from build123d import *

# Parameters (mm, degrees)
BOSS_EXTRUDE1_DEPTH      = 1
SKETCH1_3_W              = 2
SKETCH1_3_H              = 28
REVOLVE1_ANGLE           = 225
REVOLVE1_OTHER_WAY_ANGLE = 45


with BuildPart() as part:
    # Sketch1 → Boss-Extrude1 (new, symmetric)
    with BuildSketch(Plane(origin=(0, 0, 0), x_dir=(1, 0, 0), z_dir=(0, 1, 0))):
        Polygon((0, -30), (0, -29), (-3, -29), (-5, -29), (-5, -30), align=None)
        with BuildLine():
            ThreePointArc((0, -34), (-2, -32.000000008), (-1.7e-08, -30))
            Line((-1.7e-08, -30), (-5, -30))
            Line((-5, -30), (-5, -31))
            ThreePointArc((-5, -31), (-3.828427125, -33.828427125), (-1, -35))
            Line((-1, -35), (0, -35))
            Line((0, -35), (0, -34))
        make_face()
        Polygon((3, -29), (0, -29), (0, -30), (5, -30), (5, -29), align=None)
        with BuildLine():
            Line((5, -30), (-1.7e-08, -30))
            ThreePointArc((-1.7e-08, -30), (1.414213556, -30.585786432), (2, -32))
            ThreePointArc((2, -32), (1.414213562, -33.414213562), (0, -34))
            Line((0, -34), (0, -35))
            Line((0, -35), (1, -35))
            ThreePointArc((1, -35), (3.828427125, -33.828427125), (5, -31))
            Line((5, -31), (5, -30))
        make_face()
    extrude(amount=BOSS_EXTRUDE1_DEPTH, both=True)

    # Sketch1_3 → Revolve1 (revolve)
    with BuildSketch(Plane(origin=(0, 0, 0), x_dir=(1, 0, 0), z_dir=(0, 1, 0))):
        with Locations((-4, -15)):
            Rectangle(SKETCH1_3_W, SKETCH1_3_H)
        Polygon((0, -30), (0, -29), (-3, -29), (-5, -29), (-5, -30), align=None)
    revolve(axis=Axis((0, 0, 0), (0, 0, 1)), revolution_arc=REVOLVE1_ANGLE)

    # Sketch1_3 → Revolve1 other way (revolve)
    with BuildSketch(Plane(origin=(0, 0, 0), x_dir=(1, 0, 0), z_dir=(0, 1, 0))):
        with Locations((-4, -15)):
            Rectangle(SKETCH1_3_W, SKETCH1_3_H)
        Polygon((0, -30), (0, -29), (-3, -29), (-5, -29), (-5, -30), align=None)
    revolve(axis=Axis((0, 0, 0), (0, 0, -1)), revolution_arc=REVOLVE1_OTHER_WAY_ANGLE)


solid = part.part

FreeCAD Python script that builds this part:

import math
import FreeCAD as App
import Part
import Sketcher
Q = App.Units.Quantity


def add_polygon(sketch, points):
    """Adds a closed chain of lines whose ends are joined by coincident constraints."""
    first, n = sketch.GeometryCount, len(points)
    for a, b in zip(points, points[1:] + points[:1]):
        sketch.addGeometry(Part.LineSegment(App.Vector(*a, 0), App.Vector(*b, 0)), False)
    for i in range(n):
        sketch.addConstraint(Sketcher.Constraint("Coincident", first + i, 2, first + (i + 1) % n, 1))

doc = App.newDocument("Part")
body = doc.addObject("PartDesign::Body", "Body")

# Sketch on XZ plane
sketch1 = doc.addObject("Sketcher::SketchObject", "Sketch")
body.addObject(sketch1)
sketch1.AttachmentSupport = (doc.XZ_Plane, [""])
sketch1.MapMode = "FlatFace"
sketch1.addGeometry([
    Part.LineSegment(App.Vector(-5, 29, 0), App.Vector(-5, 31, 0)),  # 0
    Part.ArcOfCircle(Part.Circle(App.Vector(-1, 31, 0), App.Vector(0, 0, 1), 4), math.radians(90), math.radians(180)),  # 1
    Part.LineSegment(App.Vector(-1, 35, 0), App.Vector(1, 35, 0)),  # 2
    Part.ArcOfCircle(Part.Circle(App.Vector(1, 31, 0), App.Vector(0, 0, 1), 4), math.radians(0), math.radians(90)),  # 3
    Part.LineSegment(App.Vector(5, 31, 0), App.Vector(5, 29, 0)),  # 4
    Part.LineSegment(App.Vector(5, 29, 0), App.Vector(-5, 29, 0)),  # 5
    Part.ArcOfCircle(Part.Circle(App.Vector(0, 32, 0), App.Vector(0, 0, 1), 2), math.radians(90), math.radians(270)),  # 6
    Part.ArcOfCircle(Part.Circle(App.Vector(0, 32, 0), App.Vector(0, 0, 1), 2), math.radians(-90), math.radians(0)),  # 7
    Part.ArcOfCircle(Part.Circle(App.Vector(0, 32, 0), App.Vector(0, 0, 1), 2), math.radians(0), math.radians(90)),  # 8
], False)
sketch1.addConstraint([
    Sketcher.Constraint("Tangent", 0, 2, 1, 2),
    Sketcher.Constraint("Tangent", 1, 1, 2, 1),
    Sketcher.Constraint("Tangent", 2, 2, 3, 2),
    Sketcher.Constraint("Tangent", 3, 1, 4, 1),
    Sketcher.Constraint("Coincident", 4, 2, 5, 1),
    Sketcher.Constraint("Coincident", 5, 2, 0, 1),
    Sketcher.Constraint("Tangent", 6, 2, 7, 1),
    Sketcher.Constraint("Tangent", 7, 2, 8, 1),
    Sketcher.Constraint("Tangent", 8, 2, 6, 1),
    Sketcher.Constraint("Vertical", 0),
    Sketcher.Constraint("Horizontal", 2),
    Sketcher.Constraint("Vertical", 4),
    Sketcher.Constraint("Horizontal", 5),
    Sketcher.Constraint("Equal", 1, 3),
    Sketcher.Constraint("PointOnObject", 6, 3, -2),
    Sketcher.Constraint("PointOnObject", 6, 2, -2),
    Sketcher.Constraint("PointOnObject", 8, 2, -2),
    Sketcher.Constraint("Horizontal", 8, 3, 7, 2),
    Sketcher.Constraint("Equal", 2, 0),
    Sketcher.Constraint("Radius", 1, Q("4 mm")),
    Sketcher.Constraint("Radius", 6, Q("2 mm")),
    Sketcher.Constraint("DistanceX", 2, 1, 2, 2, Q("2 mm")),
    Sketcher.Constraint("DistanceX", 1, 3, -1, 1, Q("1 mm")),
    Sketcher.Constraint("DistanceY", -1, 1, 1, 3, Q("31 mm")),
    Sketcher.Constraint("DistanceY", -1, 1, 6, 3, Q("32 mm")),
])
pad1 = doc.addObject("PartDesign::Pad", "Pad")
body.addObject(pad1)
pad1.Profile = sketch1
pad1.Length = 2
pad1.Midplane = True

# Sketch on XZ plane
sketch2 = doc.addObject("Sketcher::SketchObject", "Sketch001")
body.addObject(sketch2)
sketch2.AttachmentSupport = (doc.XZ_Plane, [""])
sketch2.MapMode = "FlatFace"
add_polygon(sketch2, [(-5, 1), (-5, 30), (0, 30), (0, 29), (-3, 29), (-3, 1)])  # lines 0-5
sketch2.addConstraint([
    Sketcher.Constraint("Vertical", 0),
    Sketcher.Constraint("Horizontal", 1),
    Sketcher.Constraint("Vertical", 2),
    Sketcher.Constraint("Horizontal", 3),
    Sketcher.Constraint("Vertical", 4),
    Sketcher.Constraint("Horizontal", 5),
    Sketcher.Constraint("PointOnObject", 1, 2, -2),
    Sketcher.Constraint("DistanceX", 1, 1, 1, 2, Q("5 mm")),
    Sketcher.Constraint("DistanceX", 3, 2, 3, 1, Q("3 mm")),
    Sketcher.Constraint("DistanceY", 0, 1, 0, 2, Q("29 mm")),
    Sketcher.Constraint("DistanceY", 2, 2, 2, 1, Q("1 mm")),
    Sketcher.Constraint("DistanceY", -1, 1, 0, 2, Q("30 mm")),
])
revolution = doc.addObject("PartDesign::Revolution", "Revolution")
body.addObject(revolution)
revolution.Profile = sketch2
revolution.ReferenceAxis = (sketch2, ["V_Axis"])
revolution.Angle = 225

# Sketch on XZ plane
sketch3 = doc.addObject("Sketcher::SketchObject", "Sketch002")
body.addObject(sketch3)
sketch3.AttachmentSupport = (doc.XZ_Plane, [""])
sketch3.MapMode = "FlatFace"
add_polygon(sketch3, [(-5, 1), (-5, 30), (0, 30), (0, 29), (-3, 29), (-3, 1)])  # lines 0-5
sketch3.addConstraint([
    Sketcher.Constraint("Vertical", 0),
    Sketcher.Constraint("Horizontal", 1),
    Sketcher.Constraint("Vertical", 2),
    Sketcher.Constraint("Horizontal", 3),
    Sketcher.Constraint("Vertical", 4),
    Sketcher.Constraint("Horizontal", 5),
    Sketcher.Constraint("PointOnObject", 1, 2, -2),
    Sketcher.Constraint("DistanceX", 1, 1, 1, 2, Q("5 mm")),
    Sketcher.Constraint("DistanceX", 3, 2, 3, 1, Q("3 mm")),
    Sketcher.Constraint("DistanceY", 0, 1, 0, 2, Q("29 mm")),
    Sketcher.Constraint("DistanceY", 2, 2, 2, 1, Q("1 mm")),
    Sketcher.Constraint("DistanceY", -1, 1, 0, 2, Q("30 mm")),
])
revolution2 = doc.addObject("PartDesign::Revolution", "Revolution001")
body.addObject(revolution2)
revolution2.Profile = sketch3
revolution2.ReferenceAxis = (sketch3, ["V_Axis"])
revolution2.Angle = 45
revolution2.Reversed = True

doc.recompute()
